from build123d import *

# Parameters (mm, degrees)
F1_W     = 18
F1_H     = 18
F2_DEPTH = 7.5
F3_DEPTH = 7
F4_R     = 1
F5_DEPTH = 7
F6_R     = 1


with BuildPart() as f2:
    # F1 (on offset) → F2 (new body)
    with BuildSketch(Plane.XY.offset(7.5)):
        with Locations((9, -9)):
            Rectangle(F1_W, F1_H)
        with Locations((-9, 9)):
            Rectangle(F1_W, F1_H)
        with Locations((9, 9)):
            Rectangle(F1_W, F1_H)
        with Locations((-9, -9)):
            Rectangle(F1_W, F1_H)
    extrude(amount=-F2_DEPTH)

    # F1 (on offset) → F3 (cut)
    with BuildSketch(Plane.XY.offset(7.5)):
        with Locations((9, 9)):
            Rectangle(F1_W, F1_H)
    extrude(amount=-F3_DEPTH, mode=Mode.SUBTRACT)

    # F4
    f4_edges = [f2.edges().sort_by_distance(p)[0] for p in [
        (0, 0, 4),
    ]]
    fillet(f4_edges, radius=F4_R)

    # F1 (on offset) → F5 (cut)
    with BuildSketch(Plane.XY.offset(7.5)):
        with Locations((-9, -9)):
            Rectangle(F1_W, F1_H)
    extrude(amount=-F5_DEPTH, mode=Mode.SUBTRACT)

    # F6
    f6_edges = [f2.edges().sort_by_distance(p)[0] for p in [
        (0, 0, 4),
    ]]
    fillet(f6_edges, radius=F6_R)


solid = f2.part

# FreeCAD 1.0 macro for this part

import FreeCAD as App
import Part
import Sketcher


def edges_at(feature, points):
    """Names of the edges that pass closest to the given points."""
    edges = feature.Shape.Edges
    near = lambda p: min(range(len(edges)), key=lambda i: edges[i].distToShape(Part.Vertex(*p))[0])
    return sorted({f"Edge{near(p) + 1}" for p in points})


def add_polygon(sketch, points):
    """Adds a closed chain of lines whose ends are joined by coincident constraints."""
    first, n = sketch.GeometryCount, len(points)
    for a, b in zip(points, points[1:] + points[:1]):
        sketch.addGeometry(Part.LineSegment(App.Vector(*a, 0), App.Vector(*b, 0)), False)
    for i in range(n):
        sketch.addConstraint(Sketcher.Constraint("Coincident", first + i, 2, first + (i + 1) % n, 1))

doc = App.newDocument("Part")
body = doc.addObject("PartDesign::Body", "Body")

sketch1 = body.newObject("Sketcher::SketchObject", "Sketch")
sketch1.AttachmentSupport = (doc.getObject("XY_Plane"), [""])
sketch1.MapMode = "FlatFace"
sketch1.AttachmentOffset = App.Placement(App.Vector(0, 0, 7.5), App.Rotation())
add_polygon(sketch1, [(18, -18), (18, 18), (-18, 18), (-18, -18)])
sketch1.addConstraint([
    Sketcher.Constraint("Vertical", 0),
    Sketcher.Constraint("Horizontal", 1),
    Sketcher.Constraint("Vertical", 2),
    Sketcher.Constraint("Horizontal", 3),
    Sketcher.Constraint("Symmetric", 0, 2, 2, 2, -1, 1),
    Sketcher.Constraint("Equal", 3, 0),
    Sketcher.Constraint("DistanceX", 1, 2, 1, 1, 36.0),
])
pad1 = body.newObject("PartDesign::Pad", "Pad")
pad1.Profile = sketch1
pad1.Length = 7.5
pad1.Reversed = True

sketch2 = body.newObject("Sketcher::SketchObject", "Sketch001")
sketch2.AttachmentSupport = (doc.getObject("XY_Plane"), [""])
sketch2.MapMode = "FlatFace"
sketch2.AttachmentOffset = App.Placement(App.Vector(0, 0, 7.5), App.Rotation())
add_polygon(sketch2, [(0, 18), (0, 0), (18, 0), (18, 18)])
sketch2.addConstraint([
    Sketcher.Constraint("Vertical", 0),
    Sketcher.Constraint("Horizontal", 1),
    Sketcher.Constraint("Vertical", 2),
    Sketcher.Constraint("Horizontal", 3),
    Sketcher.Constraint("Coincident", 0, 2, -1, 1),
    Sketcher.Constraint("Equal", 3, 0),
    Sketcher.Constraint("DistanceX", 1, 1, 1, 2, 18.0),
])
pocket1 = body.newObject("PartDesign::Pocket", "Pocket")
pocket1.Profile = sketch2
pocket1.Length = 7
doc.recompute()

fillet = body.newObject("PartDesign::Fillet", "Fillet")
fillet.Base = (pocket1, edges_at(pocket1, [(0, 0, 4)]))
fillet.Radius = 1

sketch3 = body.newObject("Sketcher::SketchObject", "Sketch002")
sketch3.AttachmentSupport = (doc.getObject("XY_Plane"), [""])
sketch3.MapMode = "FlatFace"
sketch3.AttachmentOffset = App.Placement(App.Vector(0, 0, 7.5), App.Rotation())
add_polygon(sketch3, [(-18, 0), (-18, -18), (0, -18), (0, 0)])
sketch3.addConstraint([
    Sketcher.Constraint("Vertical", 0),
    Sketcher.Constraint("Horizontal", 1),
    Sketcher.Constraint("Vertical", 2),
    Sketcher.Constraint("Horizontal", 3),
    Sketcher.Constraint("Coincident", 2, 2, -1, 1),
    Sketcher.Constraint("Equal", 3, 0),
    Sketcher.Constraint("DistanceX", 1, 1, 1, 2, 18.0),
])
pocket2 = body.newObject("PartDesign::Pocket", "Pocket001")
pocket2.Profile = sketch3
pocket2.Length = 7
doc.recompute()

fillet2 = body.newObject("PartDesign::Fillet", "Fillet001")
fillet2.Base = (pocket2, edges_at(pocket2, [(0, 0, 4)]))
fillet2.Radius = 1

doc.recompute()
